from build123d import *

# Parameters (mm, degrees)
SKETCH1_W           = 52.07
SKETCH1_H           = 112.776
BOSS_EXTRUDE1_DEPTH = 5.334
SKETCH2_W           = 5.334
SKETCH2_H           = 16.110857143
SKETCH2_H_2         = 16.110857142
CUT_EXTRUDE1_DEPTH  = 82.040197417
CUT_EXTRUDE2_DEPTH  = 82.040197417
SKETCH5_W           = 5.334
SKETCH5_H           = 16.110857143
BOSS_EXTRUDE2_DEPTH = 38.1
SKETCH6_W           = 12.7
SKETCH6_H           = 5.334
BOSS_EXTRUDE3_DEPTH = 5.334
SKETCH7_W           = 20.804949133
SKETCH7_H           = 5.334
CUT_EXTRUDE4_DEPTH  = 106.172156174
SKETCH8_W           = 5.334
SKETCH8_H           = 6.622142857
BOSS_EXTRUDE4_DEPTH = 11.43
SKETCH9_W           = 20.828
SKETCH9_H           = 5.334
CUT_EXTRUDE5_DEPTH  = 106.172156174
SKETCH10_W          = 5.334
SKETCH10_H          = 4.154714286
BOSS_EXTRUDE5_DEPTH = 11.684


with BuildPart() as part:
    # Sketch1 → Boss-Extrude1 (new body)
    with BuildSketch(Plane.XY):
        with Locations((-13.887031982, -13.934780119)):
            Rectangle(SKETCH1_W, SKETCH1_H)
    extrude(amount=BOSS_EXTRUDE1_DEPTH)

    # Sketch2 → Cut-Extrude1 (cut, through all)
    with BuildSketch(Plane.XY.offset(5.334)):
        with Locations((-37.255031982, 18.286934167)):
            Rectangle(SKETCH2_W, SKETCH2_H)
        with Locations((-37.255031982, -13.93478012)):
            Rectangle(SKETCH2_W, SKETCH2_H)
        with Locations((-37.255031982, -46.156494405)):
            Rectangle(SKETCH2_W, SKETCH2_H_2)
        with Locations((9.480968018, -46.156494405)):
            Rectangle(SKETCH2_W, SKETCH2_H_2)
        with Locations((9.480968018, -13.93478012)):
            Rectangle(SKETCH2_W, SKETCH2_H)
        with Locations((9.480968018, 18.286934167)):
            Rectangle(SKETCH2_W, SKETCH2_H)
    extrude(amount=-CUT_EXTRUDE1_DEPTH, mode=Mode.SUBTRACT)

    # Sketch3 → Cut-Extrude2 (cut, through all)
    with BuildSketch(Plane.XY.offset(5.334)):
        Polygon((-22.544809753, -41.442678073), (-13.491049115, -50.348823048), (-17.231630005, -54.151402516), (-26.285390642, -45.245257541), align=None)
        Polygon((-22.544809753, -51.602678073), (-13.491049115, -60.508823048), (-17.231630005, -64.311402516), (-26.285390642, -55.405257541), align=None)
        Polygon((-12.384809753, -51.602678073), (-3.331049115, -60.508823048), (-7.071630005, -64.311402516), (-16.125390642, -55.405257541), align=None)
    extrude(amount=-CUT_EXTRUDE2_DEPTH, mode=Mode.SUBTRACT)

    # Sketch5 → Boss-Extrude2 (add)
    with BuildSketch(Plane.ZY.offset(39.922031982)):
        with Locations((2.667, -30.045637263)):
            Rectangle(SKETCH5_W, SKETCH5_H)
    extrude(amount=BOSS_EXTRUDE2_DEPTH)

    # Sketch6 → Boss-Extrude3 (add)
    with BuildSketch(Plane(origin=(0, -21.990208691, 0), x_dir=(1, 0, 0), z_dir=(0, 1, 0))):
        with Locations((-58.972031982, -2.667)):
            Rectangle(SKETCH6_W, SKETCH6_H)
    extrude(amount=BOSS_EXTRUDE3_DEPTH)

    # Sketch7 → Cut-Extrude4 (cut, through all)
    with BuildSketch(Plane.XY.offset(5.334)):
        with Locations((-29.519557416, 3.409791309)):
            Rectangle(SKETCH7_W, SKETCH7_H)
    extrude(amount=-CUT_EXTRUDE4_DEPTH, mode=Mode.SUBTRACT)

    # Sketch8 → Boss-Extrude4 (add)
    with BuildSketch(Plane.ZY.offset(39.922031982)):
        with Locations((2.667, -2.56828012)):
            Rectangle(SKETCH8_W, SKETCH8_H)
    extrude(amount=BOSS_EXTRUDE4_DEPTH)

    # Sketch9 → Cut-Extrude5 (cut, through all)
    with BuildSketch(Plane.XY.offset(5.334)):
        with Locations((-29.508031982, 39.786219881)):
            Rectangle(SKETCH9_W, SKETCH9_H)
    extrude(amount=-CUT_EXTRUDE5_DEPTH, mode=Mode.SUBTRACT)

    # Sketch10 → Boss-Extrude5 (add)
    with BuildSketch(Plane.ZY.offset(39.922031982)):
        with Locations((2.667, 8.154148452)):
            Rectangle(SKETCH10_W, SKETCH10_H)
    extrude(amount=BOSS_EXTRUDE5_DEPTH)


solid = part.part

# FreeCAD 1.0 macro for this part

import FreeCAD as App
import Part
import Sketcher

V = App.Vector
Q = App.Units.Quantity

doc = App.newDocument("Part")
body = doc.addObject("PartDesign::Body", "Body")

sketch1 = body.newObject("Sketcher::SketchObject", "Sketch")
sketch1.AttachmentSupport = (doc.getObject("XY_Plane"), [""])
sketch1.MapMode = "FlatFace"
sketch1.addGeometry([
    Part.LineSegment(V(-39.922032, 42.45322, 0), V(-39.922032, -70.32278, 0)),
    Part.LineSegment(V(-39.922032, -70.32278, 0), V(12.147968, -70.32278, 0)),
    Part.LineSegment(V(12.147968, -70.32278, 0), V(12.147968, 42.45322, 0)),
    Part.LineSegment(V(12.147968, 42.45322, 0), V(-39.922032, 42.45322, 0)),
], False)
sketch1.addConstraint([
    Sketcher.Constraint("Coincident", 0, 2, 1, 1),
    Sketcher.Constraint("Coincident", 1, 2, 2, 1),
    Sketcher.Constraint("Coincident", 2, 2, 3, 1),
    Sketcher.Constraint("Coincident", 3, 2, 0, 1),
    Sketcher.Constraint("Vertical", 0),
    Sketcher.Constraint("Horizontal", 1),
    Sketcher.Constraint("Vertical", 2),
    Sketcher.Constraint("Horizontal", 3),
    Sketcher.Constraint("DistanceX", 1, 1, 1, 2, Q("2.05 in")),
    Sketcher.Constraint("DistanceY", 0, 2, 0, 1, Q("4.44 in")),
    Sketcher.Constraint("DistanceX", 0, 2, -1, 1, 39.922032),
    Sketcher.Constraint("DistanceY", 0, 2, -1, 1, 70.32278),
])
pad1 = body.newObject("PartDesign::Pad", "Pad")
pad1.Profile = sketch1
pad1.Length = Q("0.21 in")

sketch2 = body.newObject("Sketcher::SketchObject", "Sketch001")
sketch2.AttachmentSupport = (doc.getObject("XY_Plane"), [""])
sketch2.MapMode = "FlatFace"
sketch2.AttachmentOffset = App.Placement(V(0, 0, 0.21 * 25.4), App.Rotation())
sketch2.addGeometry([
    Part.LineSegment(V(-39.922032, 26.342363, 0), V(-39.922032, 10.231506, 0)),
    Part.LineSegment(V(-39.922032, 10.231506, 0), V(-34.588032, 10.231506, 0)),
    Part.LineSegment(V(-34.588032, 10.231506, 0), V(-34.588032, 26.342363, 0)),
    Part.LineSegment(V(-34.588032, 26.342363, 0), V(-39.922032, 26.342363, 0)),
    Part.LineSegment(V(-39.922032, -5.879352, 0), V(-39.922032, -21.990209, 0)),
    Part.LineSegment(V(-39.922032, -21.990209, 0), V(-34.588032, -21.990209, 0)),
    Part.LineSegment(V(-34.588032, -21.990209, 0), V(-34.588032, -5.879352, 0)),
    Part.LineSegment(V(-34.588032, -5.879352, 0), V(-39.922032, -5.879352, 0)),
    Part.LineSegment(V(-39.922032, -38.101066, 0), V(-39.922032, -54.211923, 0)),
    Part.LineSegment(V(-39.922032, -54.211923, 0), V(-34.588032, -54.211923, 0)),
    Part.LineSegment(V(-34.588032, -54.211923, 0), V(-34.588032, -38.101066, 0)),
    Part.LineSegment(V(-34.588032, -38.101066, 0), V(-39.922032, -38.101066, 0)),
    Part.LineSegment(V(6.813968, -38.101066, 0), V(6.813968, -54.211923, 0)),
    Part.LineSegment(V(6.813968, -54.211923, 0), V(12.147968, -54.211923, 0)),
    Part.LineSegment(V(12.147968, -54.211923, 0), V(12.147968, -38.101066, 0)),
    Part.LineSegment(V(12.147968, -38.101066, 0), V(6.813968, -38.101066, 0)),
    Part.LineSegment(V(6.813968, -5.879352, 0), V(6.813968, -21.990209, 0)),
    Part.LineSegment(V(6.813968, -21.990209, 0), V(12.147968, -21.990209, 0)),
    Part.LineSegment(V(12.147968, -21.990209, 0), V(12.147968, -5.879352, 0)),
    Part.LineSegment(V(12.147968, -5.879352, 0), V(6.813968, -5.879352, 0)),
    Part.LineSegment(V(6.813968, 26.342363, 0), V(6.813968, 10.231506, 0)),
    Part.LineSegment(V(6.813968, 10.231506, 0), V(12.147968, 10.231506, 0)),
    Part.LineSegment(V(12.147968, 10.231506, 0), V(12.147968, 26.342363, 0)),
    Part.LineSegment(V(12.147968, 26.342363, 0), V(6.813968, 26.342363, 0)),
], False)
sketch2.addConstraint([
    Sketcher.Constraint("Coincident", 0, 2, 1, 1),
    Sketcher.Constraint("Coincident", 1, 2, 2, 1),
    Sketcher.Constraint("Coincident", 2, 2, 3, 1),
    Sketcher.Constraint("Coincident", 3, 2, 0, 1),
    Sketcher.Constraint("Coincident", 4, 2, 5, 1),
    Sketcher.Constraint("Coincident", 5, 2, 6, 1),
    Sketcher.Constraint("Coincident", 6, 2, 7, 1),
    Sketcher.Constraint("Coincident", 7, 2, 4, 1),
    Sketcher.Constraint("Coincident", 8, 2, 9, 1),
    Sketcher.Constraint("Coincident", 9, 2, 10, 1),
    Sketcher.Constraint("Coincident", 10, 2, 11, 1),
    Sketcher.Constraint("Coincident", 11, 2, 8, 1),
    Sketcher.Constraint("Coincident", 12, 2, 13, 1),
    Sketcher.Constraint("Coincident", 13, 2, 14, 1),
    Sketcher.Constraint("Coincident", 14, 2, 15, 1),
    Sketcher.Constraint("Coincident", 15, 2, 12, 1),
    Sketcher.Constraint("Coincident", 16, 2, 17, 1),
    Sketcher.Constraint("Coincident", 17, 2, 18, 1),
    Sketcher.Constraint("Coincident", 18, 2, 19, 1),
    Sketcher.Constraint("Coincident", 19, 2, 16, 1),
    Sketcher.Constraint("Coincident", 20, 2, 21, 1),
    Sketcher.Constraint("Coincident", 21, 2, 22, 1),
    Sketcher.Constraint("Coincident", 22, 2, 23, 1),
    Sketcher.Constraint("Coincident", 23, 2, 20, 1),
    Sketcher.Constraint("Vertical", 0),
    Sketcher.Constraint("Horizontal", 1),
    Sketcher.Constraint("Vertical", 2),
    Sketcher.Constraint("Horizontal", 3),
    Sketcher.Constraint("Vertical", 4),
    Sketcher.Constraint("Horizontal", 5),
    Sketcher.Constraint("Vertical", 6),
    Sketcher.Constraint("Horizontal", 7),
    Sketcher.Constraint("Vertical", 8),
    Sketcher.Constraint("Horizontal", 9),
    Sketcher.Constraint("Vertical", 10),
    Sketcher.Constraint("Horizontal", 11),
    Sketcher.Constraint("Vertical", 12),
    Sketcher.Constraint("Horizontal", 13),
    Sketcher.Constraint("Vertical", 14),
    Sketcher.Constraint("Horizontal", 15),
    Sketcher.Constraint("Vertical", 16),
    Sketcher.Constraint("Horizontal", 17),
    Sketcher.Constraint("Vertical", 18),
    Sketcher.Constraint("Horizontal", 19),
    Sketcher.Constraint("Vertical", 20),
    Sketcher.Constraint("Horizontal", 21),
    Sketcher.Constraint("Vertical", 22),
    Sketcher.Constraint("Horizontal", 23),
    Sketcher.Constraint("Horizontal", 9, 2, 12, 2),
    Sketcher.Constraint("Horizontal", 11, 2, 14, 2),
    Sketcher.Constraint("Horizontal", 5, 2, 16, 2),
    Sketcher.Constraint("Horizontal", 7, 2, 18, 2),
    Sketcher.Constraint("Horizontal", 1, 2, 20, 2),
    Sketcher.Constraint("Horizontal", 3, 2, 22, 2),
    Sketcher.Constraint("Vertical", 3, 2, 4, 2),
    Sketcher.Constraint("Vertical", 2, 2, 5, 2),
    Sketcher.Constraint("Vertical", 7, 2, 8, 2),
    Sketcher.Constraint("Vertical", 6, 2, 9, 2),
    Sketcher.Constraint("Vertical", 15, 2, 16, 2),
    Sketcher.Constraint("Vertical", 14, 2, 17, 2),
    Sketcher.Constraint("Vertical", 19, 2, 20, 2),
    Sketcher.Constraint("Vertical", 18, 2, 21, 2),
    Sketcher.Constraint("Equal", 11, 13),
    Sketcher.Constraint("Equal", 2, 4),
    Sketcher.Constraint("Equal", 6, 8),
    Sketcher.Constraint("DistanceX", 1, 1, 1, 2, Q("0.21 in")),
    Sketcher.Constraint("DistanceX", 9, 2, 12, 2, Q("1.63 in")),
    Sketcher.Constraint("DistanceY", 0, 2, 0, 1, 16.110857),
    Sketcher.Constraint("DistanceX", 0, 2, -1, 1, 39.922032),
    Sketcher.Constraint("DistanceY", 4, 2, -1, 1, 21.990209),
    Sketcher.Constraint("DistanceY", 4, 2, 3, 2, 48.332571),
    Sketcher.Constraint("DistanceY", 8, 2, 7, 2, 48.332571),
])
pocket1 = body.newObject("PartDesign::Pocket", "Pocket")
pocket1.Profile = sketch2
pocket1.Type = "ThroughAll"

sketch3 = body.newObject("Sketcher::SketchObject", "Sketch002")
sketch3.AttachmentSupport = (doc.getObject("XY_Plane"), [""])
sketch3.MapMode = "FlatFace"
sketch3.AttachmentOffset = App.Placement(V(0, 0, 0.21 * 25.4), App.Rotation())
sketch3.addGeometry([
    Part.LineSegment(V(-13.491049, -50.348823, 0), V(-22.54481, -41.442678, 0)),
    Part.LineSegment(V(-22.54481, -41.442678, 0), V(-26.285391, -45.245258, 0)),
    Part.LineSegment(V(-26.285391, -45.245258, 0), V(-17.23163, -54.151403, 0)),
    Part.LineSegment(V(-17.23163, -54.151403, 0), V(-13.491049, -50.348823, 0)),
    Part.LineSegment(V(-13.491049, -60.508823, 0), V(-22.54481, -51.602678, 0)),
    Part.LineSegment(V(-22.54481, -51.602678, 0), V(-26.285391, -55.405258, 0)),
    Part.LineSegment(V(-26.285391, -55.405258, 0), V(-17.23163, -64.311403, 0)),
    Part.LineSegment(V(-17.23163, -64.311403, 0), V(-13.491049, -60.508823, 0)),
    Part.LineSegment(V(-3.331049, -60.508823, 0), V(-12.38481, -51.602678, 0)),
    Part.LineSegment(V(-12.38481, -51.602678, 0), V(-16.125391, -55.405258, 0)),
    Part.LineSegment(V(-16.125391, -55.405258, 0), V(-7.07163, -64.311403, 0)),
    Part.LineSegment(V(-7.07163, -64.311403, 0), V(-3.331049, -60.508823, 0)),
], False)
sketch3.addConstraint([
    Sketcher.Constraint("Coincident", 0, 2, 1, 1),
    Sketcher.Constraint("Coincident", 1, 2, 2, 1),
    Sketcher.Constraint("Coincident", 2, 2, 3, 1),
    Sketcher.Constraint("Coincident", 3, 2, 0, 1),
    Sketcher.Constraint("Coincident", 4, 2, 5, 1),
    Sketcher.Constraint("Coincident", 5, 2, 6, 1),
    Sketcher.Constraint("Coincident", 6, 2, 7, 1),
    Sketcher.Constraint("Coincident", 7, 2, 4, 1),
    Sketcher.Constraint("Coincident", 8, 2, 9, 1),
    Sketcher.Constraint("Coincident", 9, 2, 10, 1),
    Sketcher.Constraint("Coincident", 10, 2, 11, 1),
    Sketcher.Constraint("Coincident", 11, 2, 8, 1),
    Sketcher.Constraint("Perpendicular", 0, 1),
    Sketcher.Constraint("Perpendicular", 1, 2),
    Sketcher.Constraint("Perpendicular", 2, 3),
    Sketcher.Constraint("Perpendicular", 3, 4),
    Sketcher.Constraint("Perpendicular", 4, 5),
    Sketcher.Constraint("Perpendicular", 5, 6),
    Sketcher.Constraint("Perpendicular", 6, 7),
    Sketcher.Constraint("Perpendicular", 7, 8),
    Sketcher.Constraint("Perpendicular", 8, 9),
    Sketcher.Constraint("Perpendicular", 9, 10),
    Sketcher.Constraint("Perpendicular", 10, 11),
    Sketcher.Constraint("Horizontal", 4, 2, 8, 2),
    Sketcher.Constraint("Horizontal", 5, 2, 9, 2),
    Sketcher.Constraint("Horizontal", 6, 2, 10, 2),
    Sketcher.Constraint("Vertical", 0, 2, 4, 2),
    Sketcher.Constraint("Vertical", 1, 2, 5, 2),
    Sketcher.Constraint("Vertical", 2, 2, 6, 2),
    Sketcher.Constraint("Distance", 0, Q("0.5 in")),
    Sketcher.Constraint("DistanceY", 4, 2, 0, 2, Q("0.4 in")),
    Sketcher.Constraint("DistanceX", 4, 2, 8, 2, Q("0.4 in")),
    Sketcher.Constraint("Distance", 1, Q("0.21 in")),
    Sketcher.Constraint("DistanceX", 0, 2, -1, 1, 22.54481),
    Sketcher.Constraint("DistanceY", 0, 2, -1, 1, 41.442678),
    Sketcher.Constraint("DistanceX", 1, 2, -1, 1, 26.285391),
])
pocket2 = body.newObject("PartDesign::Pocket", "Pocket001")
pocket2.Profile = sketch3
pocket2.Type = "ThroughAll"

sketch4 = body.newObject("Sketcher::SketchObject", "Sketch003")
sketch4.AttachmentSupport = (doc.getObject("YZ_Plane"), [""])
sketch4.MapMode = "FlatFace"
sketch4.AttachmentOffset = App.Placement(V(0, 0, -39.922032), App.Rotation())
sketch4.addGeometry([
    Part.LineSegment(V(-21.990209, 0, 0), V(-38.101066, 0, 0)),
    Part.LineSegment(V(-38.101066, 0, 0), V(-38.101066, 5.334, 0)),
    Part.LineSegment(V(-38.101066, 5.334, 0), V(-21.990209, 5.334, 0)),
    Part.LineSegment(V(-21.990209, 5.334, 0), V(-21.990209, 0, 0)),
], False)
sketch4.addConstraint([
    Sketcher.Constraint("Coincident", 0, 2, 1, 1),
    Sketcher.Constraint("Coincident", 1, 2, 2, 1),
    Sketcher.Constraint("Coincident", 2, 2, 3, 1),
    Sketcher.Constraint("Coincident", 3, 2, 0, 1),
    Sketcher.Constraint("Horizontal", 0),
    Sketcher.Constraint("Vertical", 1),
    Sketcher.Constraint("Horizontal", 2),
    Sketcher.Constraint("Vertical", 3),
    Sketcher.Constraint("PointOnObject", 0, 2, -1),
    Sketcher.Constraint("DistanceY", 1, 1, 1, 2, Q("0.21 in")),
    Sketcher.Constraint("DistanceX", 0, 2, 0, 1, 16.110857),
    Sketcher.Constraint("DistanceX", 2, 2, -1, 1, 21.990209),
])
pad2 = body.newObject("PartDesign::Pad", "Pad001")
pad2.Profile = sketch4
pad2.Length = Q("1.5 in")
pad2.Reversed = True

sketch5 = body.newObject("Sketcher::SketchObject", "Sketch004")
sketch5.AttachmentSupport = (doc.getObject("XZ_Plane"), [""])
sketch5.MapMode = "FlatFace"
sketch5.AttachmentOffset = App.Placement(V(0, 0, 21.990209), App.Rotation())
sketch5.addGeometry([
    Part.LineSegment(V(-65.322032, 0, 0), V(-65.322032, 5.334, 0)),
    Part.LineSegment(V(-65.322032, 5.334, 0), V(-52.622032, 5.334, 0)),
    Part.LineSegment(V(-52.622032, 5.334, 0), V(-52.622032, 0, 0)),
    Part.LineSegment(V(-52.622032, 0, 0), V(-65.322032, 0, 0)),
], False)
sketch5.addConstraint([
    Sketcher.Constraint("Coincident", 0, 2, 1, 1),
    Sketcher.Constraint("Coincident", 1, 2, 2, 1),
    Sketcher.Constraint("Coincident", 2, 2, 3, 1),
    Sketcher.Constraint("Coincident", 3, 2, 0, 1),
    Sketcher.Constraint("Vertical", 0),
    Sketcher.Constraint("Horizontal", 1),
    Sketcher.Constraint("Vertical", 2),
    Sketcher.Constraint("Horizontal", 3),
    Sketcher.Constraint("PointOnObject", 2, 2, -1),
    Sketcher.Constraint("DistanceX", 1, 1, 1, 2, Q("0.5 in")),
    Sketcher.Constraint("DistanceY", 0, 1, 0, 2, Q("0.21 in")),
    Sketcher.Constraint("DistanceX", 0, 2, -1, 1, 65.322032),
])
pad3 = body.newObject("PartDesign::Pad", "Pad002")
pad3.Profile = sketch5
pad3.Length = Q("0.21 in")
pad3.Reversed = True

sketch6 = body.newObject("Sketcher::SketchObject", "Sketch005")
sketch6.AttachmentSupport = (doc.getObject("XY_Plane"), [""])
sketch6.MapMode = "FlatFace"
sketch6.AttachmentOffset = App.Placement(V(0, 0, 0.21 * 25.4), App.Rotation())
sketch6.addGeometry([
    Part.LineSegment(V(-39.922032, 6.076791, 0), V(-39.922032, 0.742791, 0)),
    Part.LineSegment(V(-39.922032, 0.742791, 0), V(-19.117083, 0.742791, 0)),
    Part.LineSegment(V(-19.117083, 0.742791, 0), V(-19.117083, 6.076791, 0)),
    Part.LineSegment(V(-19.117083, 6.076791, 0), V(-39.922032, 6.076791, 0)),
], False)
sketch6.addConstraint([
    Sketcher.Constraint("Coincident", 0, 2, 1, 1),
    Sketcher.Constraint("Coincident", 1, 2, 2, 1),
    Sketcher.Constraint("Coincident", 2, 2, 3, 1),
    Sketcher.Constraint("Coincident", 3, 2, 0, 1),
    Sketcher.Constraint("Vertical", 0),
    Sketcher.Constraint("Horizontal", 1),
    Sketcher.Constraint("Vertical", 2),
    Sketcher.Constraint("Horizontal", 3),
    Sketcher.Constraint("DistanceY", 0, 2, 0, 1, Q("0.21 in")),
    Sketcher.Constraint("DistanceX", 1, 1, 1, 2, 20.804949),
    Sketcher.Constraint("DistanceX", 0, 2, -1, 1, 39.922032),
    Sketcher.Constraint("DistanceY", -1, 1, 0, 2, 0.742791),
])
pocket3 = body.newObject("PartDesign::Pocket", "Pocket002")
pocket3.Profile = sketch6
pocket3.Type = "ThroughAll"

sketch7 = body.newObject("Sketcher::SketchObject", "Sketch006")
sketch7.AttachmentSupport = (doc.getObject("YZ_Plane"), [""])
sketch7.MapMode = "FlatFace"
sketch7.AttachmentOffset = App.Placement(V(0, 0, -39.922032), App.Rotation())
sketch7.addGeometry([
    Part.LineSegment(V(0.742791, 0, 0), V(-5.879352, 0, 0)),
    Part.LineSegment(V(-5.879352, 0, 0), V(-5.879352, 5.334, 0)),
    Part.LineSegment(V(-5.879352, 5.334, 0), V(0.742791, 5.334, 0)),
    Part.LineSegment(V(0.742791, 5.334, 0), V(0.742791, 0, 0)),
], False)
sketch7.addConstraint([
    Sketcher.Constraint("Coincident", 0, 2, 1, 1),
    Sketcher.Constraint("Coincident", 1, 2, 2, 1),
    Sketcher.Constraint("Coincident", 2, 2, 3, 1),
    Sketcher.Constraint("Coincident", 3, 2, 0, 1),
    Sketcher.Constraint("Horizontal", 0),
    Sketcher.Constraint("Vertical", 1),
    Sketcher.Constraint("Horizontal", 2),
    Sketcher.Constraint("Vertical", 3),
    Sketcher.Constraint("PointOnObject", 0, 2, -1),
    Sketcher.Constraint("DistanceY", 1, 1, 1, 2, Q("0.21 in")),
    Sketcher.Constraint("DistanceX", 0, 2, 0, 1, 6.622143),
    Sketcher.Constraint("DistanceX", 0, 2, -1, 1, 5.879352),
])
pad4 = body.newObject("PartDesign::Pad", "Pad003")
pad4.Profile = sketch7
pad4.Length = Q("0.45 in")
pad4.Reversed = True

sketch8 = body.newObject("Sketcher::SketchObject", "Sketch007")
sketch8.AttachmentSupport = (doc.getObject("XY_Plane"), [""])
sketch8.MapMode = "FlatFace"
sketch8.AttachmentOffset = App.Placement(V(0, 0, 0.21 * 25.4), App.Rotation())
sketch8.addGeometry([
    Part.LineSegment(V(-39.922032, 42.45322, 0), V(-39.922032, 37.11922, 0)),
    Part.LineSegment(V(-39.922032, 37.11922, 0), V(-19.094032, 37.11922, 0)),
    Part.LineSegment(V(-19.094032, 37.11922, 0), V(-19.094032, 42.45322, 0)),
    Part.LineSegment(V(-19.094032, 42.45322, 0), V(-39.922032, 42.45322, 0)),
], False)
sketch8.addConstraint([
    Sketcher.Constraint("Coincident", 0, 2, 1, 1),
    Sketcher.Constraint("Coincident", 1, 2, 2, 1),
    Sketcher.Constraint("Coincident", 2, 2, 3, 1),
    Sketcher.Constraint("Coincident", 3, 2, 0, 1),
    Sketcher.Constraint("Vertical", 0),
    Sketcher.Constraint("Horizontal", 1),
    Sketcher.Constraint("Vertical", 2),
    Sketcher.Constraint("Horizontal", 3),
    Sketcher.Constraint("DistanceX", 1, 1, 1, 2, Q("0.82 in")),
    Sketcher.Constraint("DistanceY", 0, 2, 0, 1, Q("0.21 in")),
    Sketcher.Constraint("DistanceX", 0, 2, -1, 1, 39.922032),
    Sketcher.Constraint("DistanceY", -1, 1, 0, 2, 37.11922),
])
pocket4 = body.newObject("PartDesign::Pocket", "Pocket003")
pocket4.Profile = sketch8
pocket4.Type = "ThroughAll"

sketch9 = body.newObject("Sketcher::SketchObject", "Sketch008")
sketch9.AttachmentSupport = (doc.getObject("YZ_Plane"), [""])
sketch9.MapMode = "FlatFace"
sketch9.AttachmentOffset = App.Placement(V(0, 0, -39.922032), App.Rotation())
sketch9.addGeometry([
    Part.LineSegment(V(10.231506, 0, 0), V(6.076791, 0, 0)),
    Part.LineSegment(V(6.076791, 0, 0), V(6.076791, 5.334, 0)),
    Part.LineSegment(V(6.076791, 5.334, 0), V(10.231506, 5.334, 0)),
    Part.LineSegment(V(10.231506, 5.334, 0), V(10.231506, 0, 0)),
], False)
sketch9.addConstraint([
    Sketcher.Constraint("Coincident", 0, 2, 1, 1),
    Sketcher.Constraint("Coincident", 1, 2, 2, 1),
    Sketcher.Constraint("Coincident", 2, 2, 3, 1),
    Sketcher.Constraint("Coincident", 3, 2, 0, 1),
    Sketcher.Constraint("Horizontal", 0),
    Sketcher.Constraint("Vertical", 1),
    Sketcher.Constraint("Horizontal", 2),
    Sketcher.Constraint("Vertical", 3),
    Sketcher.Constraint("PointOnObject", 0, 2, -1),
    Sketcher.Constraint("DistanceY", 1, 1, 1, 2, Q("0.21 in")),
    Sketcher.Constraint("DistanceX", 0, 2, 0, 1, 4.154714),
    Sketcher.Constraint("DistanceX", -1, 1, 0, 2, 6.076791),
])
pad5 = body.newObject("PartDesign::Pad", "Pad004")
pad5.Profile = sketch9
pad5.Length = Q("0.46 in")
pad5.Reversed = True

doc.recompute()
